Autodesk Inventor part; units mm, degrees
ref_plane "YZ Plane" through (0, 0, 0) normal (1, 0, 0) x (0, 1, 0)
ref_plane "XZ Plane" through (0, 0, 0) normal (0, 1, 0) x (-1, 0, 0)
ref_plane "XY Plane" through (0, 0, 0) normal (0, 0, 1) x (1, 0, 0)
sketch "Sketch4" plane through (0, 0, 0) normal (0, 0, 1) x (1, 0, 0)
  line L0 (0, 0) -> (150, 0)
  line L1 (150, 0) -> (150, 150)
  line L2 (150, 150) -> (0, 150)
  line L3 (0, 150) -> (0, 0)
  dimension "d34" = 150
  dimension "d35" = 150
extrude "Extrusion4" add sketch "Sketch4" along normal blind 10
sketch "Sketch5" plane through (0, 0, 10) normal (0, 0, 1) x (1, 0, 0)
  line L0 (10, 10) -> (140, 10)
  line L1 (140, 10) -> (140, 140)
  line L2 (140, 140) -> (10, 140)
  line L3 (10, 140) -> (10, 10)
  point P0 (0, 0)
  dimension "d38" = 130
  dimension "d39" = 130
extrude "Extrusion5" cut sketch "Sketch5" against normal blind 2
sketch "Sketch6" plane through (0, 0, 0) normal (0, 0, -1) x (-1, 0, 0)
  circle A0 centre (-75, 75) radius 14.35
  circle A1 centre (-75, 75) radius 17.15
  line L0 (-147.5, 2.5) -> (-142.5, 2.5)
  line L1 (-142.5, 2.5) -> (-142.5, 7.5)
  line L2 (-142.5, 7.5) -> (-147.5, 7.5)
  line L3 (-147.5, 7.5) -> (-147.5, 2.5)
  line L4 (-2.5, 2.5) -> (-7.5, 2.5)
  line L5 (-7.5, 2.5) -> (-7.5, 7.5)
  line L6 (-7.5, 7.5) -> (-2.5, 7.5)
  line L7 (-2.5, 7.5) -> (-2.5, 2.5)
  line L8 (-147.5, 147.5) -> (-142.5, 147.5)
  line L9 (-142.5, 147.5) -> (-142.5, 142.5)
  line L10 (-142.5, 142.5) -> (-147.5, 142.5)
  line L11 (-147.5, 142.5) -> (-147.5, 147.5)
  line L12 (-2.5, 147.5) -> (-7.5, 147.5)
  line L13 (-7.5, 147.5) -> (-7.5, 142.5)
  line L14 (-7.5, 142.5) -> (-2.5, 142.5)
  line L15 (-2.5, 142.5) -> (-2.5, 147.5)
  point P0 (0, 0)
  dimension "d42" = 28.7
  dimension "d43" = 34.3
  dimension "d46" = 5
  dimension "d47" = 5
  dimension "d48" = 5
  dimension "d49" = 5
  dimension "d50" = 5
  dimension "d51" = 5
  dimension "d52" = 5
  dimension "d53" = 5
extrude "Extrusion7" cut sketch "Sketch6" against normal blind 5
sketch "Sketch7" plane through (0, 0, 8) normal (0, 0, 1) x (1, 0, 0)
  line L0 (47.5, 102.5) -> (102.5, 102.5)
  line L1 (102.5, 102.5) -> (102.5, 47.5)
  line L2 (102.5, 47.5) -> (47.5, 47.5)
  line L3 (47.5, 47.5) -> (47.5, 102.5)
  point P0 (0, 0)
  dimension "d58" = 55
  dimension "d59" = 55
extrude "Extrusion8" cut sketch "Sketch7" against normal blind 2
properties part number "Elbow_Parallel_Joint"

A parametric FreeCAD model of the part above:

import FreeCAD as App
import Part
import Sketcher
Q = App.Units.Quantity

doc = App.newDocument("Part")
params = doc.addObject("Spreadsheet::Sheet", "Params")
for row, (alias, value) in enumerate([
    ("sketch1_width", "150 mm"),
    ("pad1_length", "10 mm"),
    ("sketch2_width", "130 mm"),
    ("pocket1_length", "2 mm"),
    ("sketch3_diameter", "34.3 mm"),
    ("sketch3_diameter2", "28.7 mm"),
    ("sketch3_width", "5 mm"),
    ("pocket2_length", "5 mm"),
    ("sketch4_width", "55 mm"),
    ("pocket3_length", "2 mm"),
], start=1):
    params.set(f"A{row}", alias)
    params.set(f"B{row}", "=" + value)
    params.setAlias(f"B{row}", alias)

body = doc.addObject("PartDesign::Body", "Body")

# Sketch on XY plane
sketch1 = body.newObject("Sketcher::SketchObject", "Sketch")
sketch1.AttachmentSupport = (doc.getObject("XY_Plane"), [""])
sketch1.MapMode = "FlatFace"
sketch1.addGeometry([
    Part.LineSegment(App.Vector(0, 150, 0), App.Vector(0, 0, 0)),
    Part.LineSegment(App.Vector(0, 0, 0), App.Vector(150, 0, 0)),
    Part.LineSegment(App.Vector(150, 0, 0), App.Vector(150, 150, 0)),
    Part.LineSegment(App.Vector(150, 150, 0), App.Vector(0, 150, 0)),
], False)
sketch1.addConstraint([
    Sketcher.Constraint("Coincident", 0, 2, 1, 1),
    Sketcher.Constraint("Coincident", 1, 2, 2, 1),
    Sketcher.Constraint("Coincident", 2, 2, 3, 1),
    Sketcher.Constraint("Coincident", 3, 2, 0, 1),
    Sketcher.Constraint("Vertical", 0),
    Sketcher.Constraint("Horizontal", 1),
    Sketcher.Constraint("Vertical", 2),
    Sketcher.Constraint("Horizontal", 3),
    Sketcher.Constraint("Coincident", 0, 2, -1, 1),
    Sketcher.Constraint("Equal", 3, 0),
    Sketcher.Constraint("DistanceX", 1, 1, 1, 2, Q("150 mm")),
])
sketch1.setExpression("Constraints[10]", "Params.sketch1_width")
pad1 = body.newObject("PartDesign::Pad", "Pad")
pad1.Profile = sketch1
pad1.setExpression("Length", "Params.pad1_length")

# Sketch on XY plane
sketch2 = body.newObject("Sketcher::SketchObject", "Sketch001")
sketch2.AttachmentSupport = (doc.getObject("XY_Plane"), [""])
sketch2.MapMode = "FlatFace"
sketch2.AttachmentOffset = App.Placement(App.Vector(0, 0, 10), App.Rotation())
sketch2.addGeometry([
    Part.LineSegment(App.Vector(10, 140, 0), App.Vector(10, 10, 0)),
    Part.LineSegment(App.Vector(10, 10, 0), App.Vector(140, 10, 0)),
    Part.LineSegment(App.Vector(140, 10, 0), App.Vector(140, 140, 0)),
    Part.LineSegment(App.Vector(140, 140, 0), App.Vector(10, 140, 0)),
], False)
sketch2.addConstraint([
    Sketcher.Constraint("Coincident", 0, 2, 1, 1),
    Sketcher.Constraint("Coincident", 1, 2, 2, 1),
    Sketcher.Constraint("Coincident", 2, 2, 3, 1),
    Sketcher.Constraint("Coincident", 3, 2, 0, 1),
    Sketcher.Constraint("Vertical", 0),
    Sketcher.Constraint("Horizontal", 1),
    Sketcher.Constraint("Vertical", 2),
    Sketcher.Constraint("Horizontal", 3),
    Sketcher.Constraint("Equal", 3, 0),
    Sketcher.Constraint("DistanceX", 1, 1, 1, 2, Q("130 mm")),
    Sketcher.Constraint("DistanceX", -1, 1, 0, 2, Q("10 mm")),
    Sketcher.Constraint("DistanceY", -1, 1, 0, 2, Q("10 mm")),
])
sketch2.setExpression("Constraints[9]", "Params.sketch2_width")
pocket1 = body.newObject("PartDesign::Pocket", "Pocket")
pocket1.Profile = sketch2
pocket1.setExpression("Length", "Params.pocket1_length")

# Sketch on XY plane
sketch3 = body.newObject("Sketcher::SketchObject", "Sketch002")
sketch3.AttachmentSupport = (doc.getObject("XY_Plane"), [""])
sketch3.MapMode = "FlatFace"
sketch3.addGeometry([
    Part.Circle(App.Vector(75, 75, 0), App.Vector(0, 0, 1), 17.15),  # 0
    Part.Circle(App.Vector(75, 75, 0), App.Vector(0, 0, 1), 14.35),  # 1
    Part.LineSegment(App.Vector(147.5, 7.5, 0), App.Vector(147.5, 2.5, 0)),  # 2
    Part.LineSegment(App.Vector(147.5, 2.5, 0), App.Vector(142.5, 2.5, 0)),  # 3
    Part.LineSegment(App.Vector(142.5, 2.5, 0), App.Vector(142.5, 7.5, 0)),  # 4
    Part.LineSegment(App.Vector(142.5, 7.5, 0), App.Vector(147.5, 7.5, 0)),  # 5
    Part.LineSegment(App.Vector(7.5, 2.5, 0), App.Vector(2.5, 2.5, 0)),  # 6
    Part.LineSegment(App.Vector(2.5, 2.5, 0), App.Vector(2.5, 7.5, 0)),  # 7
    Part.LineSegment(App.Vector(2.5, 7.5, 0), App.Vector(7.5, 7.5, 0)),  # 8
    Part.LineSegment(App.Vector(7.5, 7.5, 0), App.Vector(7.5, 2.5, 0)),  # 9
    Part.LineSegment(App.Vector(142.5, 147.5, 0), App.Vector(147.5, 147.5, 0)),  # 10
    Part.LineSegment(App.Vector(147.5, 147.5, 0), App.Vector(147.5, 142.5, 0)),  # 11
    Part.LineSegment(App.Vector(147.5, 142.5, 0), App.Vector(142.5, 142.5, 0)),  # 12
    Part.LineSegment(App.Vector(142.5, 142.5, 0), App.Vector(142.5, 147.5, 0)),  # 13
    Part.LineSegment(App.Vector(2.5, 142.5, 0), App.Vector(2.5, 147.5, 0)),  # 14
    Part.LineSegment(App.Vector(2.5, 147.5, 0), App.Vector(7.5, 147.5, 0)),  # 15
    Part.LineSegment(App.Vector(7.5, 147.5, 0), App.Vector(7.5, 142.5, 0)),  # 16
    Part.LineSegment(App.Vector(7.5, 142.5, 0), App.Vector(2.5, 142.5, 0)),  # 17
], False)
sketch3.addConstraint([
    Sketcher.Constraint("Coincident", 2, 2, 3, 1),
    Sketcher.Constraint("Coincident", 3, 2, 4, 1),
    Sketcher.Constraint("Coincident", 4, 2, 5, 1),
    Sketcher.Constraint("Coincident", 5, 2, 2, 1),
    Sketcher.Constraint("Coincident", 6, 2, 7, 1),
    Sketcher.Constraint("Coincident", 7, 2, 8, 1),
    Sketcher.Constraint("Coincident", 8, 2, 9, 1),
    Sketcher.Constraint("Coincident", 9, 2, 6, 1),
    Sketcher.Constraint("Coincident", 10, 2, 11, 1),
    Sketcher.Constraint("Coincident", 11, 2, 12, 1),
    Sketcher.Constraint("Coincident", 12, 2, 13, 1),
    Sketcher.Constraint("Coincident", 13, 2, 10, 1),
    Sketcher.Constraint("Coincident", 14, 2, 15, 1),
    Sketcher.Constraint("Coincident", 15, 2, 16, 1),
    Sketcher.Constraint("Coincident", 16, 2, 17, 1),
    Sketcher.Constraint("Coincident", 17, 2, 14, 1),
    Sketcher.Constraint("Vertical", 2),
    Sketcher.Constraint("Horizontal", 3),
    Sketcher.Constraint("Vertical", 4),
    Sketcher.Constraint("Horizontal", 5),
    Sketcher.Constraint("Horizontal", 6),
    Sketcher.Constraint("Vertical", 7),
    Sketcher.Constraint("Horizontal", 8),
    Sketcher.Constraint("Vertical", 9),
    Sketcher.Constraint("Horizontal", 10),
    Sketcher.Constraint("Vertical", 11),
    Sketcher.Constraint("Horizontal", 12),
    Sketcher.Constraint("Vertical", 13),
    Sketcher.Constraint("Vertical", 14),
    Sketcher.Constraint("Horizontal", 15),
    Sketcher.Constraint("Vertical", 16),
    Sketcher.Constraint("Horizontal", 17),
    Sketcher.Constraint("Coincident", 1, 3, 0, 3),
    Sketcher.Constraint("Horizontal", 3, 2, 6, 2),
    Sketcher.Constraint("Horizontal", 5, 2, 7, 2),
    Sketcher.Constraint("Horizontal", 13, 2, 14, 2),
    Sketcher.Constraint("Horizontal", 12, 2, 16, 2),
    Sketcher.Constraint("Vertical", 5, 2, 10, 2),
    Sketcher.Constraint("Vertical", 4, 2, 12, 2),
    Sketcher.Constraint("Vertical", 7, 2, 14, 2),
    Sketcher.Constraint("Vertical", 9, 2, 15, 2),
    Sketcher.Constraint("Equal", 5, 6),
    Sketcher.Constraint("Equal", 17, 2),
    Sketcher.Constraint("Equal", 9, 11),
    Sketcher.Constraint("Diameter", 0, Q("34.3 mm")),
    Sketcher.Constraint("Diameter", 1, Q("28.7 mm")),
    Sketcher.Constraint("DistanceX", 3, 2, 3, 1, Q("5 mm")),
    Sketcher.Constraint("DistanceX", -1, 1, 0, 3, Q("75 mm")),
    Sketcher.Constraint("DistanceY", -1, 1, 0, 3, Q("75 mm")),
    Sketcher.Constraint("DistanceX", 6, 2, 3, 2, Q("140 mm")),
    Sketcher.Constraint("DistanceY", 5, 2, 10, 2, Q("140 mm")),
    Sketcher.Constraint("DistanceX", -1, 1, 2, 2, Q("147.5 mm")),
    Sketcher.Constraint("DistanceY", -1, 1, 2, 2, Q("2.5 mm")),
])
sketch3.setExpression("Constraints[44]", "Params.sketch3_diameter")
sketch3.setExpression("Constraints[45]", "Params.sketch3_diameter2")
sketch3.setExpression("Constraints[46]", "Params.sketch3_width")
pocket2 = body.newObject("PartDesign::Pocket", "Pocket001")
pocket2.Profile = sketch3
pocket2.setExpression("Length", "Params.pocket2_length")
pocket2.Reversed = True

# Sketch on XY plane
sketch4 = body.newObject("Sketcher::SketchObject", "Sketch003")
sketch4.AttachmentSupport = (doc.getObject("XY_Plane"), [""])
sketch4.MapMode = "FlatFace"
sketch4.AttachmentOffset = App.Placement(App.Vector(0, 0, 8), App.Rotation())
sketch4.addGeometry([
    Part.LineSegment(App.Vector(102.5, 102.5, 0), App.Vector(47.5, 102.5, 0)),
    Part.LineSegment(App.Vector(47.5, 102.5, 0), App.Vector(47.5, 47.5, 0)),
    Part.LineSegment(App.Vector(47.5, 47.5, 0), App.Vector(102.5, 47.5, 0)),
    Part.LineSegment(App.Vector(102.5, 47.5, 0), App.Vector(102.5, 102.5, 0)),
], False)
sketch4.addConstraint([
    Sketcher.Constraint("Coincident", 0, 2, 1, 1),
    Sketcher.Constraint("Coincident", 1, 2, 2, 1),
    Sketcher.Constraint("Coincident", 2, 2, 3, 1),
    Sketcher.Constraint("Coincident", 3, 2, 0, 1),
    Sketcher.Constraint("Horizontal", 0),
    Sketcher.Constraint("Vertical", 1),
    Sketcher.Constraint("Horizontal", 2),
    Sketcher.Constraint("Vertical", 3),
    Sketcher.Constraint("Equal", 2, 1),
    Sketcher.Constraint("DistanceX", 0, 2, 0, 1, Q("55 mm")),
    Sketcher.Constraint("DistanceX", -1, 1, 0, 2, Q("47.5 mm")),
    Sketcher.Constraint("DistanceY", -1, 1, 0, 2, Q("102.5 mm")),
])
sketch4.setExpression("Constraints[9]", "Params.sketch4_width")
pocket3 = body.newObject("PartDesign::Pocket", "Pocket002")
pocket3.Profile = sketch4
pocket3.setExpression("Length", "Params.pocket3_length")

doc.recompute()
